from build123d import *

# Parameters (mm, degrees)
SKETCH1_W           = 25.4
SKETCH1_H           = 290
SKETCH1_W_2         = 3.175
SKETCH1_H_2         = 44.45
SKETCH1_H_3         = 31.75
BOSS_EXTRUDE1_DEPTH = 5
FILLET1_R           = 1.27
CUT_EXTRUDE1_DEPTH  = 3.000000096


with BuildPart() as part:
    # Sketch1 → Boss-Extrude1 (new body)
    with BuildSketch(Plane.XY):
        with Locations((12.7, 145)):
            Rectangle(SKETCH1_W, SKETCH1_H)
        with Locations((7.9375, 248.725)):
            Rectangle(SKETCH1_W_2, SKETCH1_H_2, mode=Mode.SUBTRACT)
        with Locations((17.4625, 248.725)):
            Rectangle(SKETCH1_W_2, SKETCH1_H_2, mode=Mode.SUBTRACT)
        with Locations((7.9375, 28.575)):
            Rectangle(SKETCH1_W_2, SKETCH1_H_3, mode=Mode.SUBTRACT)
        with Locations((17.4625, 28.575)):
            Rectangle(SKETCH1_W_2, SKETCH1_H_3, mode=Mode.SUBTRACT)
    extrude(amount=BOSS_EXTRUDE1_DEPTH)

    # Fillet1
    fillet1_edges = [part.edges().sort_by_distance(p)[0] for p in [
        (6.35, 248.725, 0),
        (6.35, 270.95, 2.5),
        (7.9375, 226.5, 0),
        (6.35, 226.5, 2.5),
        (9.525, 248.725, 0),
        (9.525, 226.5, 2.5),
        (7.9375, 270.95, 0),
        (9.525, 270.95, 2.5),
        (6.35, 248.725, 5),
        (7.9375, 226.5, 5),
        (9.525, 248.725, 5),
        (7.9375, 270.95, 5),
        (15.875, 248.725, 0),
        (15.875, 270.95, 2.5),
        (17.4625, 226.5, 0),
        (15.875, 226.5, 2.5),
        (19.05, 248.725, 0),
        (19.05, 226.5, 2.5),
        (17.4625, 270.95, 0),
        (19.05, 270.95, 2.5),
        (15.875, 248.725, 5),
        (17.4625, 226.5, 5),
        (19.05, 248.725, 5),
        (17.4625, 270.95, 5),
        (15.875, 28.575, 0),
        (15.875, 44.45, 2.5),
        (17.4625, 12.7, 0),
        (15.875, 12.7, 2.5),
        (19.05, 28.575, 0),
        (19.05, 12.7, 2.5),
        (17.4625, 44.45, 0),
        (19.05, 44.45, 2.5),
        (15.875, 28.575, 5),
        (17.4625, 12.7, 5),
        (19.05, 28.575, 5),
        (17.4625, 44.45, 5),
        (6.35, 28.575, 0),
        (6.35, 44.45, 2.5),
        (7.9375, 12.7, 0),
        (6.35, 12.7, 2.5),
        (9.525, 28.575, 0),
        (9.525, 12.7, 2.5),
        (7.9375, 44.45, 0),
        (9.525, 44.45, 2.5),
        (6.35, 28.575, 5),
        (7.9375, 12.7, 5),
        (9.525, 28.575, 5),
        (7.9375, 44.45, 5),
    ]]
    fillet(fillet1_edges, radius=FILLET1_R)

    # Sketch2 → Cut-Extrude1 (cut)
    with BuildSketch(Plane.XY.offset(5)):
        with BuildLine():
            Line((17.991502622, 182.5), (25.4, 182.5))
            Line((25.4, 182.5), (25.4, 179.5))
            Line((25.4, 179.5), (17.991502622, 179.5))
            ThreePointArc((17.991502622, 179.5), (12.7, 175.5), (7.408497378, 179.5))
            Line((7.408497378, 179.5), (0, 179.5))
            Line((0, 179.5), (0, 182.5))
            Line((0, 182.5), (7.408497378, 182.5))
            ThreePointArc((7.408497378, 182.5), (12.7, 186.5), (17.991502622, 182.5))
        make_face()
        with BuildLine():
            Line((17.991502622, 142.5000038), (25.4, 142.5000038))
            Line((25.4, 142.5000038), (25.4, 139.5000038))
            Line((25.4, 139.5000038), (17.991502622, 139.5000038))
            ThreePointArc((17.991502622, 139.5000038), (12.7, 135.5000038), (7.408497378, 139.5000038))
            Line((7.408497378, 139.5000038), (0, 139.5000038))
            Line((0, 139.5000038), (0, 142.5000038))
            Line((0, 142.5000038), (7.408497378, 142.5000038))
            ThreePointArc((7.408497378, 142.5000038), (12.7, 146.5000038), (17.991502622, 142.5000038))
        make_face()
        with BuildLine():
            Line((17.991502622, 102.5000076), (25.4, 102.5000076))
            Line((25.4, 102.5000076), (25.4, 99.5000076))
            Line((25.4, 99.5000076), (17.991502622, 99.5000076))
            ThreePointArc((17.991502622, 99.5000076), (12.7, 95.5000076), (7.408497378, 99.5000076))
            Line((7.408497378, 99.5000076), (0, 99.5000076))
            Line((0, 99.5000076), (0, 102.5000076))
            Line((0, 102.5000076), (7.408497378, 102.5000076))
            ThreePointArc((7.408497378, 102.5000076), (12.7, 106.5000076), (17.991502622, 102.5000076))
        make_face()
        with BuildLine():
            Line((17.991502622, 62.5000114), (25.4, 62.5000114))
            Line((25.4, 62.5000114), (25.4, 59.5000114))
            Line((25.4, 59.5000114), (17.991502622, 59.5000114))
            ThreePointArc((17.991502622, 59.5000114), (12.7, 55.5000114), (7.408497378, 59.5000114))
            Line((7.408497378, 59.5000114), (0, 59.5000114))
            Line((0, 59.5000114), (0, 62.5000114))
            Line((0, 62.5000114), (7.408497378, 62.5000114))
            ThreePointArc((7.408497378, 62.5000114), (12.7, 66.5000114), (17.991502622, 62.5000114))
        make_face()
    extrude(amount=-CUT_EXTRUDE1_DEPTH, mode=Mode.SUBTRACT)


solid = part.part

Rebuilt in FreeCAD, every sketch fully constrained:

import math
import FreeCAD as App
import Part
import Sketcher

V = App.Vector
Q = App.Units.Quantity


def edges_at(feature, points):
    """Names of the edges that pass closest to the given points."""
    edges = feature.Shape.Edges
    near = lambda p: min(range(len(edges)), key=lambda i: edges[i].distToShape(Part.Vertex(*p))[0])
    return sorted({f"Edge{near(p) + 1}" for p in points})


def add_polygon(sketch, points):
    """Adds a closed chain of lines whose ends are joined by coincident constraints."""
    first, n = sketch.GeometryCount, len(points)
    for a, b in zip(points, points[1:] + points[:1]):
        sketch.addGeometry(Part.LineSegment(App.Vector(*a, 0), App.Vector(*b, 0)), False)
    for i in range(n):
        sketch.addConstraint(Sketcher.Constraint("Coincident", first + i, 2, first + (i + 1) % n, 1))

doc = App.newDocument("Part")
body = doc.addObject("PartDesign::Body", "Body")

# Sketch on XY plane
sketch1 = body.newObject("Sketcher::SketchObject", "Sketch")
sketch1.AttachmentSupport = (doc.getObject("XY_Plane"), [""])
sketch1.MapMode = "FlatFace"
add_polygon(sketch1, [(0, 290), (0, 0), (25.4, 0), (25.4, 290)])  # lines 0-3
add_polygon(sketch1, [(9.5, 12.7), (6.3, 12.7), (6.3, 44.5), (9.5, 44.5)])  # lines 4-7
add_polygon(sketch1, [(19.1, 12.7), (15.9, 12.7), (15.9, 44.5), (19.1, 44.5)])  # lines 8-11
add_polygon(sketch1, [(9.5, 226.5), (6.3, 226.5), (6.3, 270.9), (9.5, 270.9)])  # lines 12-15
add_polygon(sketch1, [(19.1, 226.5), (15.9, 226.5), (15.9, 270.9), (19.1, 270.9)])  # lines 16-19
sketch1.addConstraint([
    Sketcher.Constraint("Vertical", 0),
    Sketcher.Constraint("Horizontal", 1),
    Sketcher.Constraint("Vertical", 2),
    Sketcher.Constraint("Horizontal", 3),
    Sketcher.Constraint("Horizontal", 4),
    Sketcher.Constraint("Vertical", 5),
    Sketcher.Constraint("Horizontal", 6),
    Sketcher.Constraint("Vertical", 7),
    Sketcher.Constraint("Horizontal", 8),
    Sketcher.Constraint("Vertical", 9),
    Sketcher.Constraint("Horizontal", 10),
    Sketcher.Constraint("Vertical", 11),
    Sketcher.Constraint("Horizontal", 12),
    Sketcher.Constraint("Vertical", 13),
    Sketcher.Constraint("Horizontal", 14),
    Sketcher.Constraint("Vertical", 15),
    Sketcher.Constraint("Horizontal", 16),
    Sketcher.Constraint("Vertical", 17),
    Sketcher.Constraint("Horizontal", 18),
    Sketcher.Constraint("Vertical", 19),
    Sketcher.Constraint("Coincident", 0, 2, -1, 1),
    Sketcher.Constraint("Horizontal", 7, 2, 8, 2),
    Sketcher.Constraint("Horizontal", 6, 2, 9, 2),
    Sketcher.Constraint("Horizontal", 15, 2, 16, 2),
    Sketcher.Constraint("Horizontal", 14, 2, 17, 2),
    Sketcher.Constraint("Vertical", 5, 2, 12, 2),
    Sketcher.Constraint("Vertical", 7, 2, 14, 2),
    Sketcher.Constraint("Vertical", 9, 2, 16, 2),
    Sketcher.Constraint("Vertical", 11, 2, 18, 2),
    Sketcher.Constraint("Equal", 6, 8),
    Sketcher.Constraint("DistanceX", 1, 1, 1, 2, Q("1 in")),
    Sketcher.Constraint("DistanceY", 5, 1, 5, 2, Q("1.25 in")),
    Sketcher.Constraint("DistanceY", 13, 1, 13, 2, Q("1.75 in")),
    Sketcher.Constraint("DistanceY", -1, 1, 4, 2, Q("0.5 in")),
    Sketcher.Constraint("DistanceX", 5, 2, 10, 2, Q("0.5 in")),
    Sketcher.Constraint("DistanceY", 12, 2, 3, 2, Q("2.5 in")),
    Sketcher.Constraint("DistanceX", 4, 2, 4, 1, Q("0.125 in")),
    Sketcher.Constraint("DistanceX", -1, 1, 4, 2, Q("0.25 in")),
    Sketcher.Constraint("DistanceY", 0, 2, 0, 1, Q("290 mm")),
])
pad1 = body.newObject("PartDesign::Pad", "Pad")
pad1.Profile = sketch1
pad1.Length = 5
doc.recompute()

fillet = body.newObject("PartDesign::Fillet", "Fillet")
fillet.Base = (pad1, edges_at(pad1, [
    (6.35, 248.725, 0),
    (6.35, 270.95, 2.5),
    (7.938, 226.5, 0),
    (6.35, 226.5, 2.5),
    (9.525, 248.725, 0),
    (9.525, 226.5, 2.5),
    (7.938, 270.95, 0),
    (9.525, 270.95, 2.5),
    (6.35, 248.725, 5),
    (7.938, 226.5, 5),
    (9.525, 248.725, 5),
    (7.938, 270.95, 5),
    (15.875, 248.725, 0),
    (15.875, 270.95, 2.5),
    (17.462, 226.5, 0),
    (15.875, 226.5, 2.5),
    (19.05, 248.725, 0),
    (19.05, 226.5, 2.5),
    (17.462, 270.95, 0),
    (19.05, 270.95, 2.5),
    (15.875, 248.725, 5),
    (17.462, 226.5, 5),
    (19.05, 248.725, 5),
    (17.462, 270.95, 5),
    (15.875, 28.575, 0),
    (15.875, 44.45, 2.5),
    (17.462, 12.7, 0),
    (15.875, 12.7, 2.5),
    (19.05, 28.575, 0),
    (19.05, 12.7, 2.5),
    (17.462, 44.45, 0),
    (19.05, 44.45, 2.5),
    (15.875, 28.575, 5),
    (17.462, 12.7, 5),
    (19.05, 28.575, 5),
    (17.462, 44.45, 5),
    (6.35, 28.575, 0),
    (6.35, 44.45, 2.5),
    (7.938, 12.7, 0),
    (6.35, 12.7, 2.5),
    (9.525, 28.575, 0),
    (9.525, 12.7, 2.5),
    (7.938, 44.45, 0),
    (9.525, 44.45, 2.5),
    (6.35, 28.575, 5),
    (7.938, 12.7, 5),
    (9.525, 28.575, 5),
    (7.938, 44.45, 5),
]))
fillet.Radius = Q("0.05 in")

# Sketch on XY plane
sketch2 = body.newObject("Sketcher::SketchObject", "Sketch001")
sketch2.AttachmentSupport = (doc.getObject("XY_Plane"), [""])
sketch2.MapMode = "FlatFace"
sketch2.AttachmentOffset = App.Placement(V(0, 0, 5), App.Rotation())
sketch2.addGeometry([
    Part.LineSegment(V(25.4, 182.5, 0), V(18, 182.5, 0)),  # 0
    Part.ArcOfCircle(Part.Circle(V(12.7, 181, 0), V(0, 0, 1), 5.5), math.radians(16), math.radians(164)),  # 1
    Part.LineSegment(V(7.4, 182.5, 0), V(0, 182.5, 0)),  # 2
    Part.LineSegment(V(0, 182.5, 0), V(0, 179.5, 0)),  # 3
    Part.LineSegment(V(0, 179.5, 0), V(7.4, 179.5, 0)),  # 4
    Part.ArcOfCircle(Part.Circle(V(12.7, 181, 0), V(0, 0, 1), 5.5), math.radians(-164), math.radians(-16)),  # 5
    Part.LineSegment(V(18, 179.5, 0), V(25.4, 179.5, 0)),  # 6
    Part.LineSegment(V(25.4, 179.5, 0), V(25.4, 182.5, 0)),  # 7
    Part.LineSegment(V(25.4, 142.5, 0), V(18, 142.5, 0)),  # 8
    Part.ArcOfCircle(Part.Circle(V(12.7, 141, 0), V(0, 0, 1), 5.5), math.radians(16), math.radians(164)),  # 9
    Part.LineSegment(V(7.4, 142.5, 0), V(0, 142.5, 0)),  # 10
    Part.LineSegment(V(0, 142.5, 0), V(0, 139.5, 0)),  # 11
    Part.LineSegment(V(0, 139.5, 0), V(7.4, 139.5, 0)),  # 12
    Part.ArcOfCircle(Part.Circle(V(12.7, 141, 0), V(0, 0, 1), 5.5), math.radians(-164), math.radians(-16)),  # 13
    Part.LineSegment(V(18, 139.5, 0), V(25.4, 139.5, 0)),  # 14
    Part.LineSegment(V(25.4, 139.5, 0), V(25.4, 142.5, 0)),  # 15
    Part.LineSegment(V(25.4, 102.5, 0), V(18, 102.5, 0)),  # 16
    Part.ArcOfCircle(Part.Circle(V(12.7, 101, 0), V(0, 0, 1), 5.5), math.radians(16), math.radians(164)),  # 17
    Part.LineSegment(V(7.4, 102.5, 0), V(0, 102.5, 0)),  # 18
    Part.LineSegment(V(0, 102.5, 0), V(0, 99.5, 0)),  # 19
    Part.LineSegment(V(0, 99.5, 0), V(7.4, 99.5, 0)),  # 20
    Part.ArcOfCircle(Part.Circle(V(12.7, 101, 0), V(0, 0, 1), 5.5), math.radians(-164), math.radians(-16)),  # 21
    Part.LineSegment(V(18, 99.5, 0), V(25.4, 99.5, 0)),  # 22
    Part.LineSegment(V(25.4, 99.5, 0), V(25.4, 102.5, 0)),  # 23
    Part.LineSegment(V(25.4, 62.5, 0), V(18, 62.5, 0)),  # 24
    Part.ArcOfCircle(Part.Circle(V(12.7, 61, 0), V(0, 0, 1), 5.5), math.radians(16), math.radians(164)),  # 25
    Part.LineSegment(V(7.4, 62.5, 0), V(0, 62.5, 0)),  # 26
    Part.LineSegment(V(0, 62.5, 0), V(0, 59.5, 0)),  # 27
    Part.LineSegment(V(0, 59.5, 0), V(7.4, 59.5, 0)),  # 28
    Part.ArcOfCircle(Part.Circle(V(12.7, 61, 0), V(0, 0, 1), 5.5), math.radians(-164), math.radians(-16)),  # 29
    Part.LineSegment(V(18, 59.5, 0), V(25.4, 59.5, 0)),  # 30
    Part.LineSegment(V(25.4, 59.5, 0), V(25.4, 62.5, 0)),  # 31
], False)
sketch2.addConstraint([
    Sketcher.Constraint("Coincident", 0, 2, 1, 1),
    Sketcher.Constraint("Coincident", 1, 2, 2, 1),
    Sketcher.Constraint("Coincident", 2, 2, 3, 1),
    Sketcher.Constraint("Coincident", 3, 2, 4, 1),
    Sketcher.Constraint("Coincident", 4, 2, 5, 1),
    Sketcher.Constraint("Coincident", 5, 2, 6, 1),
    Sketcher.Constraint("Coincident", 6, 2, 7, 1),
    Sketcher.Constraint("Coincident", 7, 2, 0, 1),
    Sketcher.Constraint("Coincident", 8, 2, 9, 1),
    Sketcher.Constraint("Coincident", 9, 2, 10, 1),
    Sketcher.Constraint("Coincident", 10, 2, 11, 1),
    Sketcher.Constraint("Coincident", 11, 2, 12, 1),
    Sketcher.Constraint("Coincident", 12, 2, 13, 1),
    Sketcher.Constraint("Coincident", 13, 2, 14, 1),
    Sketcher.Constraint("Coincident", 14, 2, 15, 1),
    Sketcher.Constraint("Coincident", 15, 2, 8, 1),
    Sketcher.Constraint("Coincident", 16, 2, 17, 1),
    Sketcher.Constraint("Coincident", 17, 2, 18, 1),
    Sketcher.Constraint("Coincident", 18, 2, 19, 1),
    Sketcher.Constraint("Coincident", 19, 2, 20, 1),
    Sketcher.Constraint("Coincident", 20, 2, 21, 1),
    Sketcher.Constraint("Coincident", 21, 2, 22, 1),
    Sketcher.Constraint("Coincident", 22, 2, 23, 1),
    Sketcher.Constraint("Coincident", 23, 2, 16, 1),
    Sketcher.Constraint("Coincident", 24, 2, 25, 1),
    Sketcher.Constraint("Coincident", 25, 2, 26, 1),
    Sketcher.Constraint("Coincident", 26, 2, 27, 1),
    Sketcher.Constraint("Coincident", 27, 2, 28, 1),
    Sketcher.Constraint("Coincident", 28, 2, 29, 1),
    Sketcher.Constraint("Coincident", 29, 2, 30, 1),
    Sketcher.Constraint("Coincident", 30, 2, 31, 1),
    Sketcher.Constraint("Coincident", 31, 2, 24, 1),
    Sketcher.Constraint("Horizontal", 0),
    Sketcher.Constraint("Horizontal", 2),
    Sketcher.Constraint("Vertical", 3),
    Sketcher.Constraint("Horizontal", 4),
    Sketcher.Constraint("Horizontal", 6),
    Sketcher.Constraint("Vertical", 7),
    Sketcher.Constraint("Horizontal", 8),
    Sketcher.Constraint("Horizontal", 10),
    Sketcher.Constraint("Vertical", 11),
    Sketcher.Constraint("Horizontal", 12),
    Sketcher.Constraint("Horizontal", 14),
    Sketcher.Constraint("Vertical", 15),
    Sketcher.Constraint("Horizontal", 16),
    Sketcher.Constraint("Horizontal", 18),
    Sketcher.Constraint("Vertical", 19),
    Sketcher.Constraint("Horizontal", 20),
    Sketcher.Constraint("Horizontal", 22),
    Sketcher.Constraint("Vertical", 23),
    Sketcher.Constraint("Horizontal", 24),
    Sketcher.Constraint("Horizontal", 26),
    Sketcher.Constraint("Vertical", 27),
    Sketcher.Constraint("Horizontal", 28),
    Sketcher.Constraint("Horizontal", 30),
    Sketcher.Constraint("Vertical", 31),
    Sketcher.Constraint("Coincident", 5, 3, 1, 3),
    Sketcher.Constraint("Coincident", 13, 3, 9, 3),
    Sketcher.Constraint("Coincident", 21, 3, 17, 3),
    Sketcher.Constraint("Coincident", 29, 3, 25, 3),
    Sketcher.Constraint("Equal", 1, 5),
    Sketcher.Constraint("Equal", 5, 9),
    Sketcher.Constraint("Equal", 9, 13),
    Sketcher.Constraint("Equal", 13, 17),
    Sketcher.Constraint("Equal", 17, 21),
    Sketcher.Constraint("Equal", 21, 25),
    Sketcher.Constraint("Equal", 25, 29),
    Sketcher.Constraint("PointOnObject", 2, 2, -2),
    Sketcher.Constraint("PointOnObject", 10, 2, -2),
    Sketcher.Constraint("PointOnObject", 18, 2, -2),
    Sketcher.Constraint("PointOnObject", 26, 2, -2),
    Sketcher.Constraint("Horizontal", 0, 2, 1, 2),
    Sketcher.Constraint("Horizontal", 4, 2, 5, 2),
    Sketcher.Constraint("Horizontal", 8, 2, 9, 2),
    Sketcher.Constraint("Horizontal", 12, 2, 13, 2),
    Sketcher.Constraint("Horizontal", 16, 2, 17, 2),
    Sketcher.Constraint("Horizontal", 20, 2, 21, 2),
    Sketcher.Constraint("Horizontal", 24, 2, 25, 2),
    Sketcher.Constraint("Horizontal", 28, 2, 29, 2),
    Sketcher.Constraint("Vertical", 5, 3, 9, 3),
    Sketcher.Constraint("Vertical", 13, 3, 17, 3),
    Sketcher.Constraint("Vertical", 21, 3, 25, 3),
    Sketcher.Constraint("Vertical", 1, 2, 4, 2),
    Sketcher.Constraint("Vertical", 5, 2, 8, 2),
    Sketcher.Constraint("Vertical", 9, 2, 12, 2),
    Sketcher.Constraint("Vertical", 7, 2, 14, 2),
    Sketcher.Constraint("Vertical", 13, 2, 16, 2),
    Sketcher.Constraint("Vertical", 17, 2, 20, 2),
    Sketcher.Constraint("Vertical", 15, 2, 22, 2),
    Sketcher.Constraint("Vertical", 21, 2, 24, 2),
    Sketcher.Constraint("Vertical", 25, 2, 28, 2),
    Sketcher.Constraint("Vertical", 23, 2, 30, 2),
    Sketcher.Constraint("Equal", 0, 2),
    Sketcher.Constraint("DistanceX", -1, 1, 6, 2, Q("1 in")),
    Sketcher.Constraint("Radius", 1, Q("5.5 mm")),
    Sketcher.Constraint("DistanceY", 3, 2, 3, 1, Q("3 mm")),
    Sketcher.Constraint("DistanceY", -1, 1, 1, 3, Q("181 mm")),
    Sketcher.Constraint("DistanceY", -1, 1, 25, 3, Q("61.000011 mm")),
    Sketcher.Constraint("DistanceY", -1, 1, 9, 3, Q("141.000004 mm")),
    Sketcher.Constraint("DistanceY", -1, 1, 17, 3, Q("101.000008 mm")),
])
pocket1 = body.newObject("PartDesign::Pocket", "Pocket")
pocket1.Profile = sketch2
pocket1.Length = 3

doc.recompute()
